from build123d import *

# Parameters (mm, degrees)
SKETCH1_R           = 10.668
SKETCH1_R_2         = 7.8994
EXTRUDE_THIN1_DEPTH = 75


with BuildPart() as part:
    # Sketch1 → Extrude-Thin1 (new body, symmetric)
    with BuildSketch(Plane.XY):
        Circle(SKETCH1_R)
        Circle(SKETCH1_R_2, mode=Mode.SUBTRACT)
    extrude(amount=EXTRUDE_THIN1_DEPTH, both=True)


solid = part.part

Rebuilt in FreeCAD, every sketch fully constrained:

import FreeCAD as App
import Part
import Sketcher
from FreeCAD import Vector
Q = App.Units.Quantity

doc = App.newDocument("Part")
body = doc.addObject("PartDesign::Body", "Body")

sketch1 = body.newObject("Sketcher::SketchObject", "Sketch")
sketch1.AttachmentSupport = (doc.getObject("XY_Plane"), [""])
sketch1.MapMode = "FlatFace"
sketch1.addGeometry([
    Part.Circle(Vector(0, 0, 0), Vector(0, 0, 1), 11),
    Part.Circle(Vector(0, 0, 0), Vector(0, 0, 1), 8),
], False)
sketch1.addConstraint([
    Sketcher.Constraint("Coincident", 0, 3, -1, 1),
    Sketcher.Constraint("Coincident", 1, 3, -1, 1),
    Sketcher.Constraint("Diameter", 0, Q("0.84 in")),
    Sketcher.Constraint("Diameter", 1, Q("0.622 in")),
])
pad1 = body.newObject("PartDesign::Pad", "Pad")
pad1.Profile = sketch1
pad1.Length = 150
pad1.Midplane = True

doc.recompute()
